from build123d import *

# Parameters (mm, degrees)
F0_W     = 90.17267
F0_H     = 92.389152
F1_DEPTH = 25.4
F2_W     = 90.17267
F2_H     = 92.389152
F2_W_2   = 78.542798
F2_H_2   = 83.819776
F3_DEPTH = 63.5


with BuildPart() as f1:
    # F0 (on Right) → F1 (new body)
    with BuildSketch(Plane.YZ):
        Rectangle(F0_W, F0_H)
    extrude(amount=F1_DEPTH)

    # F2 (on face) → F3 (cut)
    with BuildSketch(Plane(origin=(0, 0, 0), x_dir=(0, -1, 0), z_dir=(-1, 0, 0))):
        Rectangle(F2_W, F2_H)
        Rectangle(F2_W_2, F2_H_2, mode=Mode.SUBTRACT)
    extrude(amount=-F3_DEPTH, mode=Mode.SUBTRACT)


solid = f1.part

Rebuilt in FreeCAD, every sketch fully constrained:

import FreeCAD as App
import Part
import Sketcher
Q = App.Units.Quantity


def add_polygon(sketch, points):
    """Adds a closed chain of lines whose ends are joined by coincident constraints."""
    first, n = sketch.GeometryCount, len(points)
    for a, b in zip(points, points[1:] + points[:1]):
        sketch.addGeometry(Part.LineSegment(App.Vector(*a, 0), App.Vector(*b, 0)), False)
    for i in range(n):
        sketch.addConstraint(Sketcher.Constraint("Coincident", first + i, 2, first + (i + 1) % n, 1))

doc = App.newDocument("Part")
body = doc.addObject("PartDesign::Body", "Body")

# Sketch on YZ plane
sketch1 = body.newObject("Sketcher::SketchObject", "Sketch")
sketch1.AttachmentSupport = (doc.getObject("YZ_Plane"), [""])
sketch1.MapMode = "FlatFace"
add_polygon(sketch1, [(-45.086335, 46.194576), (-45.086335, -46.194576), (45.086335, -46.194576), (45.086335, 46.194576)])  # lines 0-3
sketch1.addConstraint([
    Sketcher.Constraint("Vertical", 0),
    Sketcher.Constraint("Horizontal", 1),
    Sketcher.Constraint("Vertical", 2),
    Sketcher.Constraint("Horizontal", 3),
    Sketcher.Constraint("Symmetric", 0, 2, 2, 2, -1, 1),
    Sketcher.Constraint("DistanceX", 1, 1, 1, 2, 90.17267),
    Sketcher.Constraint("DistanceY", 0, 2, 0, 1, 92.389152),
])
pad1 = body.newObject("PartDesign::Pad", "Pad")
pad1.Profile = sketch1
pad1.Length = Q("1 in")

# Sketch on YZ plane
sketch2 = body.newObject("Sketcher::SketchObject", "Sketch001")
sketch2.AttachmentSupport = (doc.getObject("YZ_Plane"), [""])
sketch2.MapMode = "FlatFace"
add_polygon(sketch2, [(45.086335, 46.194576), (45.086335, -46.194576), (-45.086335, -46.194576), (-45.086335, 46.194576)])  # lines 0-3
add_polygon(sketch2, [(-39.271399, -41.909888), (39.271399, -41.909888), (39.271399, 41.909888), (-39.271399, 41.909888)])  # lines 4-7
sketch2.addConstraint([
    Sketcher.Constraint("Vertical", 0),
    Sketcher.Constraint("Horizontal", 1),
    Sketcher.Constraint("Vertical", 2),
    Sketcher.Constraint("Horizontal", 3),
    Sketcher.Constraint("Horizontal", 4),
    Sketcher.Constraint("Vertical", 5),
    Sketcher.Constraint("Horizontal", 6),
    Sketcher.Constraint("Vertical", 7),
    Sketcher.Constraint("Symmetric", 0, 2, 2, 2, -1, 1),
    Sketcher.Constraint("Symmetric", 4, 2, 6, 2, -1, 1),
    Sketcher.Constraint("DistanceX", 4, 1, 4, 2, 78.542798),
    Sketcher.Constraint("DistanceX", 1, 2, 1, 1, 90.17267),
    Sketcher.Constraint("DistanceY", 0, 2, 0, 1, 92.389152),
    Sketcher.Constraint("DistanceY", 5, 1, 5, 2, 83.819776),
])
pocket1 = body.newObject("PartDesign::Pocket", "Pocket")
pocket1.Profile = sketch2
pocket1.Length = Q("2.5 in")
pocket1.Reversed = True

doc.recompute()
